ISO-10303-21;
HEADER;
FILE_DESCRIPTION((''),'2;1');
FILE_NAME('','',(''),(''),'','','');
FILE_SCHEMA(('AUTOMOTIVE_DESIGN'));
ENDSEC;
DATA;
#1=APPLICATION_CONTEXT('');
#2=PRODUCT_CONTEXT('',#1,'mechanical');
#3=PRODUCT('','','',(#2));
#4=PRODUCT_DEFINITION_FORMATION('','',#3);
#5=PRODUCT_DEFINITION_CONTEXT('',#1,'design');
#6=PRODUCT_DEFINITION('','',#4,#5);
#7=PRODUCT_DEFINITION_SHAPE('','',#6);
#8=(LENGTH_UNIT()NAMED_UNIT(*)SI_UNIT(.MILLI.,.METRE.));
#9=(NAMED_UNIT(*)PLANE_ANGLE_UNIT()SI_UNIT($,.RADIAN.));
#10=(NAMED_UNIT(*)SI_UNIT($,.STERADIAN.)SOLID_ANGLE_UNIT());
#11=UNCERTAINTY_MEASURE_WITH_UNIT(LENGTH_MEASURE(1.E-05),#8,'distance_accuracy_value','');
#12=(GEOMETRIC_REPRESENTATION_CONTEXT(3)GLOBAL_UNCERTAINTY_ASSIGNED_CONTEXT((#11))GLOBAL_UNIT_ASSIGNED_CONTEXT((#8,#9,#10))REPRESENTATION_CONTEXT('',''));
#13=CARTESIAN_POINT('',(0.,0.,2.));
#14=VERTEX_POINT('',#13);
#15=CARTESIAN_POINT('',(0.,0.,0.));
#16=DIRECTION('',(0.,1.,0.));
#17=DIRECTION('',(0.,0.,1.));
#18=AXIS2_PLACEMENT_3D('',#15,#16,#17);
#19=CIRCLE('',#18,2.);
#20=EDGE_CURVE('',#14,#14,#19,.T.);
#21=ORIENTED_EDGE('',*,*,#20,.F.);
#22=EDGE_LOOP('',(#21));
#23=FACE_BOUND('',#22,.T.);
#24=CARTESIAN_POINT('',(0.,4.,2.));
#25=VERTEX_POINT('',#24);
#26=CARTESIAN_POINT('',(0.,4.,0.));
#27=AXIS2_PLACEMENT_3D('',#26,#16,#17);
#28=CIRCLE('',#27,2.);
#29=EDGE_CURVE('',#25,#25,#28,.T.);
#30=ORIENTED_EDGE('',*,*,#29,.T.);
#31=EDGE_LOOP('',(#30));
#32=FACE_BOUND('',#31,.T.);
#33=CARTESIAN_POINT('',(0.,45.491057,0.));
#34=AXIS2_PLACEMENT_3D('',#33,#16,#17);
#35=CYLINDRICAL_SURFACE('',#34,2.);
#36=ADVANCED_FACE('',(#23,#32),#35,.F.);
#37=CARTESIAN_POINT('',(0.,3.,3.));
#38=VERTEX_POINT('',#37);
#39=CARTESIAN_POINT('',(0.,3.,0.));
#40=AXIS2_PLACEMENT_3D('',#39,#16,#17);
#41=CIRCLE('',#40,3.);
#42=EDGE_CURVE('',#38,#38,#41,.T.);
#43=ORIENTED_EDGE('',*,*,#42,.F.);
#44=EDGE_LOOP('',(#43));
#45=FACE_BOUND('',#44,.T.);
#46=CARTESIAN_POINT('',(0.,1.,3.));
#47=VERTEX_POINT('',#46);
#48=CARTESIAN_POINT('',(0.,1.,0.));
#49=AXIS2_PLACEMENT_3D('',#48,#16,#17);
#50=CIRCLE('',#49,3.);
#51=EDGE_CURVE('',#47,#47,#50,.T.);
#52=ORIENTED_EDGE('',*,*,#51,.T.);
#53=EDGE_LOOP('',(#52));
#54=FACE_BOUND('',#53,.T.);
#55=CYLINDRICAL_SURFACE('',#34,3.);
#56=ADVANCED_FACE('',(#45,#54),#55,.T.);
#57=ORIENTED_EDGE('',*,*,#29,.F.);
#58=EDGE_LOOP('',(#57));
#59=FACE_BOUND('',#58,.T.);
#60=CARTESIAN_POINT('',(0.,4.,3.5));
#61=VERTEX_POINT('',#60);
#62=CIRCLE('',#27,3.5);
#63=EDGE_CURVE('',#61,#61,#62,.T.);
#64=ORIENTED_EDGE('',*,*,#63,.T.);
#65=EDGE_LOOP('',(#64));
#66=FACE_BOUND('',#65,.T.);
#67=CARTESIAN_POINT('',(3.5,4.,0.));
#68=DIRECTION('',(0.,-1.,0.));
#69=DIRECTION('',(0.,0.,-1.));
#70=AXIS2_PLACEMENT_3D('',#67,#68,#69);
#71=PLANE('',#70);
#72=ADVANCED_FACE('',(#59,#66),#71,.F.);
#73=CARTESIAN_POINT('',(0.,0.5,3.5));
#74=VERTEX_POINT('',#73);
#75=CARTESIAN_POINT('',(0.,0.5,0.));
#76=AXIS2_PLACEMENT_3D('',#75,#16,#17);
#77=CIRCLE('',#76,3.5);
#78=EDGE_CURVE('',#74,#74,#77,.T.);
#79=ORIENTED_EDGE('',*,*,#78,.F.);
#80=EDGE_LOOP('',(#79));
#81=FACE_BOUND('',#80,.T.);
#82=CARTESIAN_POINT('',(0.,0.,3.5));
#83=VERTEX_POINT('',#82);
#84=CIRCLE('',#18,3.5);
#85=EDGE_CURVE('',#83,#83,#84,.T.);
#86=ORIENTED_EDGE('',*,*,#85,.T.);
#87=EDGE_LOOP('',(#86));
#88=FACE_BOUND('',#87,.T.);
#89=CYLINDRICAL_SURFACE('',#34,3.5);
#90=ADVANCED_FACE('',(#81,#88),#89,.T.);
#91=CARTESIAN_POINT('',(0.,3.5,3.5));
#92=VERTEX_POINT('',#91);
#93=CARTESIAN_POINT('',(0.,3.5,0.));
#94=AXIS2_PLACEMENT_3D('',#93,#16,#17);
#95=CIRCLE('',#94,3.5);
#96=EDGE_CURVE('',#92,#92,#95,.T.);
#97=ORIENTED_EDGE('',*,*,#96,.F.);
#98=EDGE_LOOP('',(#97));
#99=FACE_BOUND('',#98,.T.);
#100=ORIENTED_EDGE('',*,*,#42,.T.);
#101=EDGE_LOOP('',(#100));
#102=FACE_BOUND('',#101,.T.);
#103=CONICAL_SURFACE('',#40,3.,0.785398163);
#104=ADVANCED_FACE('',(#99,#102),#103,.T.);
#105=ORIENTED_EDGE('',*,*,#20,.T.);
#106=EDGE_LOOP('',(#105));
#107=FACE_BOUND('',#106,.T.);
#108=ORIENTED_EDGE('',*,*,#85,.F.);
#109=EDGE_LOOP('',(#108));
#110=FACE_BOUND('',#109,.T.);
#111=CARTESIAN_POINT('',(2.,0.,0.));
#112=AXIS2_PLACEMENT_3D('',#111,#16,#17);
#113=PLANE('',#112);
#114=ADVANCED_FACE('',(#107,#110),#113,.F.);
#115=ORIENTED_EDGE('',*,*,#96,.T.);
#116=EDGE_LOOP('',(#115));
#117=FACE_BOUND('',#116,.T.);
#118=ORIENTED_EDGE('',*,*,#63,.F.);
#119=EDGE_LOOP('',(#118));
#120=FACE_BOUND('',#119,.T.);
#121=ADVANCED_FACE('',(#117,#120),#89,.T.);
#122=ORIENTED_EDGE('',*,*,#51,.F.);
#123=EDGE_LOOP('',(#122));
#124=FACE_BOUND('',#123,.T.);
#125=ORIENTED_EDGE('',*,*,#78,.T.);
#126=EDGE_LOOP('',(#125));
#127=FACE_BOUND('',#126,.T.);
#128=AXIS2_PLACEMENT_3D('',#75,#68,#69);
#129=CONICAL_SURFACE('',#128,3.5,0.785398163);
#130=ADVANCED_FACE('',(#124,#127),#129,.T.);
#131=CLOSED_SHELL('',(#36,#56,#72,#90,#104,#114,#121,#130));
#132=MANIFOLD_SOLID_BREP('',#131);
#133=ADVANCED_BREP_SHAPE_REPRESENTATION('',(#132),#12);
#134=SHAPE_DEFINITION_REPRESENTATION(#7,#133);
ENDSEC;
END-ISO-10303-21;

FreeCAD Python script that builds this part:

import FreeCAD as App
import Part
import Sketcher

V = App.Vector
Q = App.Units.Quantity


def add_polygon(sketch, points):
    """Adds a closed chain of lines whose ends are joined by coincident constraints."""
    first, n = sketch.GeometryCount, len(points)
    for a, b in zip(points, points[1:] + points[:1]):
        sketch.addGeometry(Part.LineSegment(App.Vector(*a, 0), App.Vector(*b, 0)), False)
    for i in range(n):
        sketch.addConstraint(Sketcher.Constraint("Coincident", first + i, 2, first + (i + 1) % n, 1))

doc = App.newDocument("Part")
body = doc.addObject("PartDesign::Body", "Body")

# Sketch on XY plane
sketch1 = doc.addObject("Sketcher::SketchObject", "Sketch")
body.addObject(sketch1)
sketch1.AttachmentSupport = (doc.XY_Plane, [""])
sketch1.MapMode = "FlatFace"
add_polygon(sketch1, [(2, 0), (3.5, 0), (3.5, 0.5), (3, 1), (3, 3), (3.5, 3.5), (3.5, 4), (2, 4)])  # lines 0-7
sketch1.addConstraint([
    Sketcher.Constraint("Horizontal", 0),
    Sketcher.Constraint("Vertical", 1),
    Sketcher.Constraint("Vertical", 3),
    Sketcher.Constraint("Vertical", 5),
    Sketcher.Constraint("Horizontal", 6),
    Sketcher.Constraint("Vertical", 7),
    Sketcher.Constraint("PointOnObject", 0, 2, -1),
    Sketcher.Constraint("Perpendicular", 2, 4),
    Sketcher.Constraint("Vertical", 1, 2, 4, 2),
    Sketcher.Constraint("Equal", 1, 5),
    Sketcher.Constraint("Equal", 2, 4),
    Sketcher.Constraint("DistanceY", 3, 1, 3, 2, Q("2 mm")),
    Sketcher.Constraint("DistanceY", 7, 2, 7, 1, Q("4 mm")),
    Sketcher.Constraint("DistanceX", 0, 1, 0, 2, Q("1.5 mm")),
    Sketcher.Constraint("DistanceY", 1, 1, 1, 2, Q("0.5 mm")),
    Sketcher.Constraint("DistanceX", -1, 1, 2, 2, Q("3 mm")),
])
revolution = doc.addObject("PartDesign::Revolution", "Revolution")
body.addObject(revolution)
revolution.Profile = sketch1
revolution.ReferenceAxis = (sketch1, ["V_Axis"])
revolution.Angle = 360

doc.recompute()
